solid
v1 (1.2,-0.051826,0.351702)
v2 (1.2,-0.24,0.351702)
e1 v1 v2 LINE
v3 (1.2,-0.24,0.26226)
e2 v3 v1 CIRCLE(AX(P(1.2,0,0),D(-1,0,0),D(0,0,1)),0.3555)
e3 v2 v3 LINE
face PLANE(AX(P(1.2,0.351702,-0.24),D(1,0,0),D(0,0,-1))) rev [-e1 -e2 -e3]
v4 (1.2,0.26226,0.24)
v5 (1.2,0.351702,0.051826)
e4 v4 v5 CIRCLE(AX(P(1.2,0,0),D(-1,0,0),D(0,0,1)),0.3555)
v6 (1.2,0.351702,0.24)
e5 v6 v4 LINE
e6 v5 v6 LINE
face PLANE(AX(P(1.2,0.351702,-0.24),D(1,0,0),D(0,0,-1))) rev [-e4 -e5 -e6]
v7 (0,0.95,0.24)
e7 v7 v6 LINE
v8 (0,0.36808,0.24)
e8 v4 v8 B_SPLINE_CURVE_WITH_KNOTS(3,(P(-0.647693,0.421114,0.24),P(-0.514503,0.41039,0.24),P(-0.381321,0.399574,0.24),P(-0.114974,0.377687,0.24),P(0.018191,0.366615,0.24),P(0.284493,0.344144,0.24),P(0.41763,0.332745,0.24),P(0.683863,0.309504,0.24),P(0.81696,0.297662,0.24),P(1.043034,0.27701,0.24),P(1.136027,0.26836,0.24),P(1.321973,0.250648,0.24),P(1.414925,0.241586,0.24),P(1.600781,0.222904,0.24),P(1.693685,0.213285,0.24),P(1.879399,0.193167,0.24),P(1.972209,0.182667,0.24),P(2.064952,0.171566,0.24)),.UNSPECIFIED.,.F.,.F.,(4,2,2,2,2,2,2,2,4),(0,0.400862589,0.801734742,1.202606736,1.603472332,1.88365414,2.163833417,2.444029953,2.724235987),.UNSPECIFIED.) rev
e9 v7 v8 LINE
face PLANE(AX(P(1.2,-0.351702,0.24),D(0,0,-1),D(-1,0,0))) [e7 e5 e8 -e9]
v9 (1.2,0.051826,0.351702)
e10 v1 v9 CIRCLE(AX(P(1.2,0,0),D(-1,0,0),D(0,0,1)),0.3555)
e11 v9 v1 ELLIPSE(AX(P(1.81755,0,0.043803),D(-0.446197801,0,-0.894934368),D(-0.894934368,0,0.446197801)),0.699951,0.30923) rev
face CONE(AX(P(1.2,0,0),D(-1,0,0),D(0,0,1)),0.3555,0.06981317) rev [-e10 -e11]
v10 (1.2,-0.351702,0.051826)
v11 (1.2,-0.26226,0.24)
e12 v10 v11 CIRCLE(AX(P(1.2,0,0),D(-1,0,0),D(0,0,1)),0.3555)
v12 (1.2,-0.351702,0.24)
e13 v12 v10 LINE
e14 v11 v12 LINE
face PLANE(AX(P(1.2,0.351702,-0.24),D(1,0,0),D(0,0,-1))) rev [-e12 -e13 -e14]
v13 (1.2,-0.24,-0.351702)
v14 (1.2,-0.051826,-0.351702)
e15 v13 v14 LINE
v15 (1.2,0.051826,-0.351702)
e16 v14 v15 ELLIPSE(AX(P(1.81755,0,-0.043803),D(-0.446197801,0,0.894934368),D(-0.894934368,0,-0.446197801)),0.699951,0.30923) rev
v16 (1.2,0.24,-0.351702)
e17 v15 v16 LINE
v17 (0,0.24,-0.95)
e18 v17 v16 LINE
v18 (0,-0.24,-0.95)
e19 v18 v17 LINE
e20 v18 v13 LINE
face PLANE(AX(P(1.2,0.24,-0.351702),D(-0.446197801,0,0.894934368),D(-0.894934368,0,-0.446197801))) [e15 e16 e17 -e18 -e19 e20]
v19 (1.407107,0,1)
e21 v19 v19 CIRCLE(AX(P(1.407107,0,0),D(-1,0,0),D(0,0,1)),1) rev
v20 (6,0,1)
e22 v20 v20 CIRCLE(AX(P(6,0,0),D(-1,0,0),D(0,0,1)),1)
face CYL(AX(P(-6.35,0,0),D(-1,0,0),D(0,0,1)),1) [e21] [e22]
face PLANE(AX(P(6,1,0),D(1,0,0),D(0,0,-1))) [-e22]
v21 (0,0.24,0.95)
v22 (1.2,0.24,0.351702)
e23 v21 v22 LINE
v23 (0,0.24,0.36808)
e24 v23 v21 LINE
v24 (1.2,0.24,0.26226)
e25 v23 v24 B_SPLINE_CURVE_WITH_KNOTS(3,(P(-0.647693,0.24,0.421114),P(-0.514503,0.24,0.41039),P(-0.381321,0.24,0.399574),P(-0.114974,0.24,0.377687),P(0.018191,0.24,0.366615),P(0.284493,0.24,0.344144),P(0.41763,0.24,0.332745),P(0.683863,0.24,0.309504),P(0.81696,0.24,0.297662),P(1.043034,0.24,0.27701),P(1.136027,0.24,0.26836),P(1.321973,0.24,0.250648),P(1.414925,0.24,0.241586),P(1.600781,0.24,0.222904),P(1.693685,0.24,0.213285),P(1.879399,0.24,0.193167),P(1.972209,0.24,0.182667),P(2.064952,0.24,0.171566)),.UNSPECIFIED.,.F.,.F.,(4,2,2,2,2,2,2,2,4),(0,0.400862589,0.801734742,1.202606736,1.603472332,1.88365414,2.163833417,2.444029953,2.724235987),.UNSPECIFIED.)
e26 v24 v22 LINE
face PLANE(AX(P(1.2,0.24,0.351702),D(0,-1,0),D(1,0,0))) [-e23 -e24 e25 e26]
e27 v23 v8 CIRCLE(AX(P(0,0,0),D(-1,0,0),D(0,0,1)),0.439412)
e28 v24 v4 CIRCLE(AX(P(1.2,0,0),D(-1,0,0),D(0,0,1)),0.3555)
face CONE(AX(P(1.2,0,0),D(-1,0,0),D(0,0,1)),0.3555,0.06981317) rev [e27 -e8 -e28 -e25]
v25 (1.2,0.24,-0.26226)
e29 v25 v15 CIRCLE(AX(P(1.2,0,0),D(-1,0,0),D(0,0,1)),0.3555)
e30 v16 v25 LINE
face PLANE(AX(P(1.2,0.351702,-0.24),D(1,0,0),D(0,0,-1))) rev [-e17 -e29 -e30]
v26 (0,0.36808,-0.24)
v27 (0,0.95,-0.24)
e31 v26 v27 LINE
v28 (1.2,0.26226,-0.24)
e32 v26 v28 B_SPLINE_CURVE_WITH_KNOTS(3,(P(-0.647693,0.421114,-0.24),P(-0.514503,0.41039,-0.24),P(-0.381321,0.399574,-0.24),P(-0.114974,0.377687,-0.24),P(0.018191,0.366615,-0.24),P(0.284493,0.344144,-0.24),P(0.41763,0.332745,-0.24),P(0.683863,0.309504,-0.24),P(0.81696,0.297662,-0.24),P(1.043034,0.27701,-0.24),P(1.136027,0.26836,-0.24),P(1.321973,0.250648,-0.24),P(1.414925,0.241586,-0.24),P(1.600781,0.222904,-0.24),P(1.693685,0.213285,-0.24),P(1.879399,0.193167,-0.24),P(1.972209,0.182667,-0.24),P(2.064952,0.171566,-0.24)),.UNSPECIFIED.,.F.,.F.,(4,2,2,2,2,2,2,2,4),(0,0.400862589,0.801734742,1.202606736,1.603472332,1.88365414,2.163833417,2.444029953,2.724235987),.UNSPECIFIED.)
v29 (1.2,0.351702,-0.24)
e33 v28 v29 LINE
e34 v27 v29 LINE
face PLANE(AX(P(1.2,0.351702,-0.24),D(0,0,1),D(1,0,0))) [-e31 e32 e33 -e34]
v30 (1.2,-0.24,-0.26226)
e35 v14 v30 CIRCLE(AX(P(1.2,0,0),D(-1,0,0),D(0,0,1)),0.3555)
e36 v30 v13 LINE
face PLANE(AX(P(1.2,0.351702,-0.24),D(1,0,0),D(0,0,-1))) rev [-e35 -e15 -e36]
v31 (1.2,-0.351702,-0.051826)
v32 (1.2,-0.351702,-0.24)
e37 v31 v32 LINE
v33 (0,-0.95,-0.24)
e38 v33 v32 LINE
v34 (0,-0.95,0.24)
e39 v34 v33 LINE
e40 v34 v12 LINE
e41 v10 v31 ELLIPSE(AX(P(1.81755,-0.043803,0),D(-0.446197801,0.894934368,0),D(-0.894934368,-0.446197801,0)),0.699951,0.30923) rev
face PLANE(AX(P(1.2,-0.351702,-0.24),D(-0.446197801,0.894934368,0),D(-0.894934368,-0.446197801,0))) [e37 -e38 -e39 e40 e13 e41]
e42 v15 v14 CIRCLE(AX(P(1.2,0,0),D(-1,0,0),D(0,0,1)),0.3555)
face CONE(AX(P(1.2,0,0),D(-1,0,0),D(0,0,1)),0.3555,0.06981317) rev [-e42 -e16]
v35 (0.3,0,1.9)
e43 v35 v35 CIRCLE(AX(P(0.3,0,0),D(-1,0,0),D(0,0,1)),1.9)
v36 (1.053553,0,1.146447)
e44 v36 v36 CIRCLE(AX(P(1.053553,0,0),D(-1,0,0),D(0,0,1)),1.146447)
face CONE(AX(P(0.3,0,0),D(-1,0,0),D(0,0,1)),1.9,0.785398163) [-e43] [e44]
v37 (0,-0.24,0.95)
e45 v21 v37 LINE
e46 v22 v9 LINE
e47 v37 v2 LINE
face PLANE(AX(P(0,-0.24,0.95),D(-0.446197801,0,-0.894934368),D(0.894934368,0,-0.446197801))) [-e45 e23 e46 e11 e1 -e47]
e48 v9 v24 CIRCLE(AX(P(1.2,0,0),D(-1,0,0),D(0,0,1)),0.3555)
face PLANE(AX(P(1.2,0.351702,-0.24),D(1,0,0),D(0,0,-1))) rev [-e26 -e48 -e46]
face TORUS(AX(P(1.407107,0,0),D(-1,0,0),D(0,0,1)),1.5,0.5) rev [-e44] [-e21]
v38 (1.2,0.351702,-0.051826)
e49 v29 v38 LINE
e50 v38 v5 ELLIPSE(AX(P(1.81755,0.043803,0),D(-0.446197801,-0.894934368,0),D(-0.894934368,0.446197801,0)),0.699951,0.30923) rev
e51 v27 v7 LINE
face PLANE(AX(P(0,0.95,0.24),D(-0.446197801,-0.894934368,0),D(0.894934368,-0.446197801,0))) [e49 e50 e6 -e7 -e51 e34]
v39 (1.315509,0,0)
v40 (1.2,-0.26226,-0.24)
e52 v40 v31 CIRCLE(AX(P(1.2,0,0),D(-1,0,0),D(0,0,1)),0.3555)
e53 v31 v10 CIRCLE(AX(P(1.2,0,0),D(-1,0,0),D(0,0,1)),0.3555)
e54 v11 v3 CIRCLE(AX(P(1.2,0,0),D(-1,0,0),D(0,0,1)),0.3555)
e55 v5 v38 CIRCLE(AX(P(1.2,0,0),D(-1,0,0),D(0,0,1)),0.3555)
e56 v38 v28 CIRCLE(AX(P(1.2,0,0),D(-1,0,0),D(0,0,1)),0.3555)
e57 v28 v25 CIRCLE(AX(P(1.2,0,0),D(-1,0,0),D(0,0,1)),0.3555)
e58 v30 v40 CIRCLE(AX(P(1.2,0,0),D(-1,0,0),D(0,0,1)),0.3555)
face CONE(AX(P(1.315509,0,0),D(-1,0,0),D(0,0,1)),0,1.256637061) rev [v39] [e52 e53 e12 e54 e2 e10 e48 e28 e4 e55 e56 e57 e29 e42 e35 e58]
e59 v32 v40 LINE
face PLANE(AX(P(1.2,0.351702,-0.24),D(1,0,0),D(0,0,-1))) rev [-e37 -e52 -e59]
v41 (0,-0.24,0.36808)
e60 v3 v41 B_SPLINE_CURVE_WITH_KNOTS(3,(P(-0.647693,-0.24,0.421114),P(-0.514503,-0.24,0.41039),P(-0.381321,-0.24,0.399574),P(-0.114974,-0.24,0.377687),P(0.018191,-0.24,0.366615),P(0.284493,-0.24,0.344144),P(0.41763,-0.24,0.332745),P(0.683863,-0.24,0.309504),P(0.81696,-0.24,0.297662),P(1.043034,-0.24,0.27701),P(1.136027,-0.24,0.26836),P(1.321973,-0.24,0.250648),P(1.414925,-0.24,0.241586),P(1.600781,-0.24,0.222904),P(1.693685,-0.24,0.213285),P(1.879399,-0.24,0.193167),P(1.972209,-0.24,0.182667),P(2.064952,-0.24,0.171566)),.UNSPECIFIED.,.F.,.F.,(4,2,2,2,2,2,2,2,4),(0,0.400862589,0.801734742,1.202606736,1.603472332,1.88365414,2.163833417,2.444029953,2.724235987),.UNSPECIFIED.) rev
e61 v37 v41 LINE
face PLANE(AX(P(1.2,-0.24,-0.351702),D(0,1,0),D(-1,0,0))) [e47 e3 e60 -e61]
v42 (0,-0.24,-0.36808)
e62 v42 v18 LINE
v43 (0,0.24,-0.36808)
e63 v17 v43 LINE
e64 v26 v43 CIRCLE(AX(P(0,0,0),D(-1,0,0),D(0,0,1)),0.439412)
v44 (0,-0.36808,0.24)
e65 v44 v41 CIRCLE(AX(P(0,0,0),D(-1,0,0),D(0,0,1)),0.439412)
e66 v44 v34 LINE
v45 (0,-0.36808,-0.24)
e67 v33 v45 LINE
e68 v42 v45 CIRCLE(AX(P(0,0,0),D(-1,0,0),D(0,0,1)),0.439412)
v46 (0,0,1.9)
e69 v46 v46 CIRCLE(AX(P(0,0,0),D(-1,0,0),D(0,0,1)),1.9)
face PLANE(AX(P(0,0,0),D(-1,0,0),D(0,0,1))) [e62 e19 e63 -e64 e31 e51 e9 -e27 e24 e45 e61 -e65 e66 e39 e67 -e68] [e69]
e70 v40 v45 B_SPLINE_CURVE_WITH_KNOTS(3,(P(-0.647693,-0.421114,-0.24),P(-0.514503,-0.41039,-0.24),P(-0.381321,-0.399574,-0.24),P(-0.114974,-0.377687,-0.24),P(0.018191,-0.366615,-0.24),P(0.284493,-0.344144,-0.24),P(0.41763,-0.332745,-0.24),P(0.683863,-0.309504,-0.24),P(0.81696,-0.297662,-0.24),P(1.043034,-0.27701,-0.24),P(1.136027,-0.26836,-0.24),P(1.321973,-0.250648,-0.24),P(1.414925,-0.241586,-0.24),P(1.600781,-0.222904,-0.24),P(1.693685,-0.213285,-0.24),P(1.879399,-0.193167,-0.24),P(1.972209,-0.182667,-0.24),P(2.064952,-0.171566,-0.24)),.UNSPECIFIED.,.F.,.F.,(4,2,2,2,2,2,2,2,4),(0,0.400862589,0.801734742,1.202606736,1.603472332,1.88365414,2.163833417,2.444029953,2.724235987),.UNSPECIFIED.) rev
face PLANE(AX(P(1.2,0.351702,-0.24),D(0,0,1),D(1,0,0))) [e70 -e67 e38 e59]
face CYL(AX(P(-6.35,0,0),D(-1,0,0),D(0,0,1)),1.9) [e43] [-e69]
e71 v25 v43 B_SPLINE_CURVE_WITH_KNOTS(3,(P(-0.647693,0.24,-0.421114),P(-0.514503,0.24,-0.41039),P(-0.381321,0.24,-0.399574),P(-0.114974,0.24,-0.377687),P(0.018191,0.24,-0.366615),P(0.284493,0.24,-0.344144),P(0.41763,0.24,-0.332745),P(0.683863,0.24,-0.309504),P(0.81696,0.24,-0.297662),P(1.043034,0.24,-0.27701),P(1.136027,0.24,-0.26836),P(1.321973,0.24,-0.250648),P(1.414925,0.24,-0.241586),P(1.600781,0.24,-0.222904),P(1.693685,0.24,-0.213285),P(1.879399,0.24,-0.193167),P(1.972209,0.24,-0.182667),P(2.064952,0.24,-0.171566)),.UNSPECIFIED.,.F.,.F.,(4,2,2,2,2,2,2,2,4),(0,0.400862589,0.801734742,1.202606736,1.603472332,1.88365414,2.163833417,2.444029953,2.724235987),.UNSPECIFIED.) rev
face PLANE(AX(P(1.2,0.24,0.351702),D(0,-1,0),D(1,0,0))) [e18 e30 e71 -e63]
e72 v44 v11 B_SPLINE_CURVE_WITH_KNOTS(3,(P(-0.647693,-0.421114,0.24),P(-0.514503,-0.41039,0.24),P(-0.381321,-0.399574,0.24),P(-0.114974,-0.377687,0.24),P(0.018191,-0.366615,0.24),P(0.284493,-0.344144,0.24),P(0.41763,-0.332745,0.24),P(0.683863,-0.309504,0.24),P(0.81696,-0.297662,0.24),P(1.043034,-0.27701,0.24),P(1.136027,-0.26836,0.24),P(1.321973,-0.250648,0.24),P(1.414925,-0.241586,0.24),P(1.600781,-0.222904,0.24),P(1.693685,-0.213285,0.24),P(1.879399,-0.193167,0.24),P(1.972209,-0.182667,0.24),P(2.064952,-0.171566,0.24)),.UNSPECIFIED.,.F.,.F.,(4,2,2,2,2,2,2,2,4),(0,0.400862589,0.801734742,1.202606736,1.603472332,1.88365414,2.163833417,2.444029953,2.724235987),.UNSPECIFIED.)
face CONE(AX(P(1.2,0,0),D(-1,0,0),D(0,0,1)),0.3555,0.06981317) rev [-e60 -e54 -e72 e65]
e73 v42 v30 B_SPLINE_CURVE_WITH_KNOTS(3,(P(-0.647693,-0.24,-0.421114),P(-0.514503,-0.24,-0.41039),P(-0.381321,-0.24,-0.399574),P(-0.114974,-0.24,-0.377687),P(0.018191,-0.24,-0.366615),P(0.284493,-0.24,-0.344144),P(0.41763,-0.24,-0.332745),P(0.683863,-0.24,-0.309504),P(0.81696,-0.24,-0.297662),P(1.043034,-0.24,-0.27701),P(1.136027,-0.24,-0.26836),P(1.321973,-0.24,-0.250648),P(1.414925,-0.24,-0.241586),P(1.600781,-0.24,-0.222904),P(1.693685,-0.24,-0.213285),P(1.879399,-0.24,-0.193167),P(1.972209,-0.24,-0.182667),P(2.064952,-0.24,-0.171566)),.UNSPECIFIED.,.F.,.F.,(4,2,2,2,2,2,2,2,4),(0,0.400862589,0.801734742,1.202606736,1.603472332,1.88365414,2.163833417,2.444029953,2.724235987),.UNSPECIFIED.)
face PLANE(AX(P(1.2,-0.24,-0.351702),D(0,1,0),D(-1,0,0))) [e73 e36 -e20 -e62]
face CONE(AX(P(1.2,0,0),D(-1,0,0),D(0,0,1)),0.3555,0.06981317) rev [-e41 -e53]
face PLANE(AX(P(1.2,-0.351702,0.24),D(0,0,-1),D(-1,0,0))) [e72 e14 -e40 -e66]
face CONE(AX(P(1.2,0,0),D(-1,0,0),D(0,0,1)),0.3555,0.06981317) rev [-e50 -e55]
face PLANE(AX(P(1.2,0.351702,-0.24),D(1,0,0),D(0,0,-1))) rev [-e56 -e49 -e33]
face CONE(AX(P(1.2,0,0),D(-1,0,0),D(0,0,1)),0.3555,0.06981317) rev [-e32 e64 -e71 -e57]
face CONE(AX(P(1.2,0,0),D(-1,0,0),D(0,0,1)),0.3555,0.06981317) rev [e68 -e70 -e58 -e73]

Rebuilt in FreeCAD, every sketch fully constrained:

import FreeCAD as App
import Part
import Sketcher

V = App.Vector
Q = App.Units.Quantity


def edges_at(feature, points):
    """Names of the edges that pass closest to the given points."""
    edges = feature.Shape.Edges
    near = lambda p: min(range(len(edges)), key=lambda i: edges[i].distToShape(Part.Vertex(*p))[0])
    return sorted({f"Edge{near(p) + 1}" for p in points})

doc = App.newDocument("Part")
params = doc.addObject("Spreadsheet::Sheet", "Params")
for row, (alias, value) in enumerate([
    ("sketch1_width", "6 mm"),
    ("sketch1_height", "1 mm"),
    ("sketch1_width2", "4.8 mm"),
    ("sketch1_width3", "0.3 mm"),
    ("revolution_angle", "360 deg"),
    ("fillet_radius", "0.5 mm"),
    ("sketch2_width", "1.9 mm"),
    ("sketch2_height", "0.48 mm"),
    ("sketch3_height", "0.48 mm"),
    ("groove_angle", "360 deg"),
], start=1):
    params.set(f"A{row}", alias)
    params.set(f"B{row}", "=" + value)
    params.setAlias(f"B{row}", alias)

body = doc.addObject("PartDesign::Body", "Body")

sketch1 = body.newObject("Sketcher::SketchObject", "Sketch")
sketch1.AttachmentSupport = (doc.getObject("XY_Plane"), [""])
sketch1.MapMode = "FlatFace"
sketch1.addGeometry([
    Part.LineSegment(V(0, 1.9, 0), V(0, 0, 0)),
    Part.LineSegment(V(0, 0, 0), V(6, 0, 0)),
    Part.LineSegment(V(6, 0, 0), V(6, 1, 0)),
    Part.LineSegment(V(6, 1, 0), V(1.2, 1, 0)),
    Part.LineSegment(V(1.2, 1, 0), V(0.3, 1.9, 0)),
    Part.LineSegment(V(0.3, 1.9, 0), V(0, 1.9, 0)),
], False)
sketch1.addConstraint([
    Sketcher.Constraint("Coincident", 0, 2, 1, 1),
    Sketcher.Constraint("Coincident", 1, 2, 2, 1),
    Sketcher.Constraint("Coincident", 2, 2, 3, 1),
    Sketcher.Constraint("Coincident", 3, 2, 4, 1),
    Sketcher.Constraint("Coincident", 4, 2, 5, 1),
    Sketcher.Constraint("Coincident", 5, 2, 0, 1),
    Sketcher.Constraint("Vertical", 0),
    Sketcher.Constraint("Horizontal", 1),
    Sketcher.Constraint("Vertical", 2),
    Sketcher.Constraint("Horizontal", 3),
    Sketcher.Constraint("Horizontal", 5),
    Sketcher.Constraint("Coincident", 0, 2, -1, 1),
    Sketcher.Constraint("DistanceX", 1, 1, 1, 2, Q("6 mm")),
    Sketcher.Constraint("DistanceY", 2, 1, 2, 2, Q("1 mm")),
    Sketcher.Constraint("Angle", 4, Q("135 deg")),
    Sketcher.Constraint("DistanceX", 3, 2, 3, 1, Q("4.8 mm")),
    Sketcher.Constraint("DistanceX", 5, 2, 5, 1, Q("0.3 mm")),
])
sketch1.setExpression("Constraints[12]", "Params.sketch1_width")
sketch1.setExpression("Constraints[13]", "Params.sketch1_height")
sketch1.setExpression("Constraints[15]", "Params.sketch1_width2")
sketch1.setExpression("Constraints[16]", "Params.sketch1_width3")
revolution = body.newObject("PartDesign::Revolution", "Revolution")
revolution.Profile = sketch1
revolution.ReferenceAxis = (sketch1, ["H_Axis"])
revolution.setExpression("Angle", "Params.revolution_angle")
doc.recompute()

fillet = body.newObject("PartDesign::Fillet", "Fillet")
fillet.Base = (revolution, edges_at(revolution, [(1.2, 0, -1)]))
fillet.setExpression("Radius", "Params.fillet_radius")

sketch2 = body.newObject("Sketcher::SketchObject", "Sketch001")
sketch2.AttachmentSupport = (doc.getObject("YZ_Plane"), [""])
sketch2.MapMode = "FlatFace"
sketch2.addGeometry([
    Part.LineSegment(V(0.95, 0.24, 0), V(0.95, -0.24, 0)),
    Part.LineSegment(V(0.95, -0.24, 0), V(-0.95, -0.24, 0)),
    Part.LineSegment(V(-0.95, -0.24, 0), V(-0.95, 0.24, 0)),
    Part.LineSegment(V(-0.95, 0.24, 0), V(0.95, 0.24, 0)),
], False)
sketch2.addConstraint([
    Sketcher.Constraint("Coincident", 0, 2, 1, 1),
    Sketcher.Constraint("Coincident", 1, 2, 2, 1),
    Sketcher.Constraint("Coincident", 2, 2, 3, 1),
    Sketcher.Constraint("Coincident", 3, 2, 0, 1),
    Sketcher.Constraint("Vertical", 0),
    Sketcher.Constraint("Horizontal", 1),
    Sketcher.Constraint("Vertical", 2),
    Sketcher.Constraint("Horizontal", 3),
    Sketcher.Constraint("Symmetric", 0, 2, 2, 2, -1, 1),
    Sketcher.Constraint("DistanceX", 1, 2, 1, 1, Q("1.9 mm")),
    Sketcher.Constraint("DistanceY", 0, 2, 0, 1, Q("0.48 mm")),
])
sketch2.setExpression("Constraints[9]", "Params.sketch2_width")
sketch2.setExpression("Constraints[10]", "Params.sketch2_height")

sketch3 = body.newObject("Sketcher::SketchObject", "Sketch002")
sketch3.AttachmentSupport = (doc.getObject("YZ_Plane"), [""])
sketch3.MapMode = "FlatFace"
sketch3.AttachmentOffset = App.Placement(V(0, 0, 1.2), App.Rotation())
sketch3.addGeometry([
    Part.LineSegment(V(0.351702, 0.24, 0), V(0.351702, -0.24, 0)),
    Part.LineSegment(V(0.351702, -0.24, 0), V(-0.351702, -0.24, 0)),
    Part.LineSegment(V(-0.351702, -0.24, 0), V(-0.351702, 0.24, 0)),
    Part.LineSegment(V(-0.351702, 0.24, 0), V(0.351702, 0.24, 0)),
], False)
sketch3.addConstraint([
    Sketcher.Constraint("Coincident", 0, 2, 1, 1),
    Sketcher.Constraint("Coincident", 1, 2, 2, 1),
    Sketcher.Constraint("Coincident", 2, 2, 3, 1),
    Sketcher.Constraint("Coincident", 3, 2, 0, 1),
    Sketcher.Constraint("Vertical", 0),
    Sketcher.Constraint("Horizontal", 1),
    Sketcher.Constraint("Vertical", 2),
    Sketcher.Constraint("Horizontal", 3),
    Sketcher.Constraint("Symmetric", 0, 2, 2, 2, -1, 1),
    Sketcher.Constraint("DistanceY", 0, 2, 0, 1, Q("0.48 mm")),
    Sketcher.Constraint("DistanceX", 1, 2, 1, 1, Q("0.703404 mm")),
])
sketch3.setExpression("Constraints[9]", "Params.sketch3_height")

subtractiveloft = body.newObject("PartDesign::SubtractiveLoft", "SubtractiveLoft")
subtractiveloft.Profile = sketch2
subtractiveloft.Sections = [sketch3]
doc.recompute()

polarpattern = body.newObject("PartDesign::PolarPattern", "PolarPattern")
polarpattern.Originals = [subtractiveloft]
polarpattern.Axis = (doc.getObject("X_Axis"), [""])
polarpattern.Angle = 90
polarpattern.Occurrences = 2
body.Tip = polarpattern

sketch4 = body.newObject("Sketcher::SketchObject", "Sketch003")
sketch4.AttachmentSupport = (doc.getObject("XY_Plane"), [""])
sketch4.MapMode = "FlatFace"
sketch4.addGeometry([
    Part.LineSegment(V(0, 0.439412, 0), V(0, 0, 0)),
    Part.LineSegment(V(0, 0, 0), V(1.315509, 0, 0)),
    Part.LineSegment(V(1.315509, 0, 0), V(1.2, 0.3555, 0)),
    Part.LineSegment(V(1.2, 0.3555, 0), V(0, 0.439412, 0)),
], False)
sketch4.addConstraint([
    Sketcher.Constraint("Coincident", 0, 2, 1, 1),
    Sketcher.Constraint("Coincident", 1, 2, 2, 1),
    Sketcher.Constraint("Coincident", 2, 2, 3, 1),
    Sketcher.Constraint("Coincident", 3, 2, 0, 1),
    Sketcher.Constraint("Vertical", 0),
    Sketcher.Constraint("Horizontal", 1),
    Sketcher.Constraint("Coincident", 0, 2, -1, 1),
    Sketcher.Constraint("Angle", 2, Q("108 deg")),
    Sketcher.Constraint("Angle", 3, Q("176 deg")),
    Sketcher.Constraint("DistanceX", -1, 1, 2, 2, Q("1.2 mm")),
    Sketcher.Constraint("DistanceX", 1, 1, 1, 2, Q("1.315509 mm")),
])
groove = body.newObject("PartDesign::Groove", "Groove")
groove.Profile = sketch4
groove.ReferenceAxis = (sketch4, ["H_Axis"])
groove.setExpression("Angle", "Params.groove_angle")

doc.recompute()
